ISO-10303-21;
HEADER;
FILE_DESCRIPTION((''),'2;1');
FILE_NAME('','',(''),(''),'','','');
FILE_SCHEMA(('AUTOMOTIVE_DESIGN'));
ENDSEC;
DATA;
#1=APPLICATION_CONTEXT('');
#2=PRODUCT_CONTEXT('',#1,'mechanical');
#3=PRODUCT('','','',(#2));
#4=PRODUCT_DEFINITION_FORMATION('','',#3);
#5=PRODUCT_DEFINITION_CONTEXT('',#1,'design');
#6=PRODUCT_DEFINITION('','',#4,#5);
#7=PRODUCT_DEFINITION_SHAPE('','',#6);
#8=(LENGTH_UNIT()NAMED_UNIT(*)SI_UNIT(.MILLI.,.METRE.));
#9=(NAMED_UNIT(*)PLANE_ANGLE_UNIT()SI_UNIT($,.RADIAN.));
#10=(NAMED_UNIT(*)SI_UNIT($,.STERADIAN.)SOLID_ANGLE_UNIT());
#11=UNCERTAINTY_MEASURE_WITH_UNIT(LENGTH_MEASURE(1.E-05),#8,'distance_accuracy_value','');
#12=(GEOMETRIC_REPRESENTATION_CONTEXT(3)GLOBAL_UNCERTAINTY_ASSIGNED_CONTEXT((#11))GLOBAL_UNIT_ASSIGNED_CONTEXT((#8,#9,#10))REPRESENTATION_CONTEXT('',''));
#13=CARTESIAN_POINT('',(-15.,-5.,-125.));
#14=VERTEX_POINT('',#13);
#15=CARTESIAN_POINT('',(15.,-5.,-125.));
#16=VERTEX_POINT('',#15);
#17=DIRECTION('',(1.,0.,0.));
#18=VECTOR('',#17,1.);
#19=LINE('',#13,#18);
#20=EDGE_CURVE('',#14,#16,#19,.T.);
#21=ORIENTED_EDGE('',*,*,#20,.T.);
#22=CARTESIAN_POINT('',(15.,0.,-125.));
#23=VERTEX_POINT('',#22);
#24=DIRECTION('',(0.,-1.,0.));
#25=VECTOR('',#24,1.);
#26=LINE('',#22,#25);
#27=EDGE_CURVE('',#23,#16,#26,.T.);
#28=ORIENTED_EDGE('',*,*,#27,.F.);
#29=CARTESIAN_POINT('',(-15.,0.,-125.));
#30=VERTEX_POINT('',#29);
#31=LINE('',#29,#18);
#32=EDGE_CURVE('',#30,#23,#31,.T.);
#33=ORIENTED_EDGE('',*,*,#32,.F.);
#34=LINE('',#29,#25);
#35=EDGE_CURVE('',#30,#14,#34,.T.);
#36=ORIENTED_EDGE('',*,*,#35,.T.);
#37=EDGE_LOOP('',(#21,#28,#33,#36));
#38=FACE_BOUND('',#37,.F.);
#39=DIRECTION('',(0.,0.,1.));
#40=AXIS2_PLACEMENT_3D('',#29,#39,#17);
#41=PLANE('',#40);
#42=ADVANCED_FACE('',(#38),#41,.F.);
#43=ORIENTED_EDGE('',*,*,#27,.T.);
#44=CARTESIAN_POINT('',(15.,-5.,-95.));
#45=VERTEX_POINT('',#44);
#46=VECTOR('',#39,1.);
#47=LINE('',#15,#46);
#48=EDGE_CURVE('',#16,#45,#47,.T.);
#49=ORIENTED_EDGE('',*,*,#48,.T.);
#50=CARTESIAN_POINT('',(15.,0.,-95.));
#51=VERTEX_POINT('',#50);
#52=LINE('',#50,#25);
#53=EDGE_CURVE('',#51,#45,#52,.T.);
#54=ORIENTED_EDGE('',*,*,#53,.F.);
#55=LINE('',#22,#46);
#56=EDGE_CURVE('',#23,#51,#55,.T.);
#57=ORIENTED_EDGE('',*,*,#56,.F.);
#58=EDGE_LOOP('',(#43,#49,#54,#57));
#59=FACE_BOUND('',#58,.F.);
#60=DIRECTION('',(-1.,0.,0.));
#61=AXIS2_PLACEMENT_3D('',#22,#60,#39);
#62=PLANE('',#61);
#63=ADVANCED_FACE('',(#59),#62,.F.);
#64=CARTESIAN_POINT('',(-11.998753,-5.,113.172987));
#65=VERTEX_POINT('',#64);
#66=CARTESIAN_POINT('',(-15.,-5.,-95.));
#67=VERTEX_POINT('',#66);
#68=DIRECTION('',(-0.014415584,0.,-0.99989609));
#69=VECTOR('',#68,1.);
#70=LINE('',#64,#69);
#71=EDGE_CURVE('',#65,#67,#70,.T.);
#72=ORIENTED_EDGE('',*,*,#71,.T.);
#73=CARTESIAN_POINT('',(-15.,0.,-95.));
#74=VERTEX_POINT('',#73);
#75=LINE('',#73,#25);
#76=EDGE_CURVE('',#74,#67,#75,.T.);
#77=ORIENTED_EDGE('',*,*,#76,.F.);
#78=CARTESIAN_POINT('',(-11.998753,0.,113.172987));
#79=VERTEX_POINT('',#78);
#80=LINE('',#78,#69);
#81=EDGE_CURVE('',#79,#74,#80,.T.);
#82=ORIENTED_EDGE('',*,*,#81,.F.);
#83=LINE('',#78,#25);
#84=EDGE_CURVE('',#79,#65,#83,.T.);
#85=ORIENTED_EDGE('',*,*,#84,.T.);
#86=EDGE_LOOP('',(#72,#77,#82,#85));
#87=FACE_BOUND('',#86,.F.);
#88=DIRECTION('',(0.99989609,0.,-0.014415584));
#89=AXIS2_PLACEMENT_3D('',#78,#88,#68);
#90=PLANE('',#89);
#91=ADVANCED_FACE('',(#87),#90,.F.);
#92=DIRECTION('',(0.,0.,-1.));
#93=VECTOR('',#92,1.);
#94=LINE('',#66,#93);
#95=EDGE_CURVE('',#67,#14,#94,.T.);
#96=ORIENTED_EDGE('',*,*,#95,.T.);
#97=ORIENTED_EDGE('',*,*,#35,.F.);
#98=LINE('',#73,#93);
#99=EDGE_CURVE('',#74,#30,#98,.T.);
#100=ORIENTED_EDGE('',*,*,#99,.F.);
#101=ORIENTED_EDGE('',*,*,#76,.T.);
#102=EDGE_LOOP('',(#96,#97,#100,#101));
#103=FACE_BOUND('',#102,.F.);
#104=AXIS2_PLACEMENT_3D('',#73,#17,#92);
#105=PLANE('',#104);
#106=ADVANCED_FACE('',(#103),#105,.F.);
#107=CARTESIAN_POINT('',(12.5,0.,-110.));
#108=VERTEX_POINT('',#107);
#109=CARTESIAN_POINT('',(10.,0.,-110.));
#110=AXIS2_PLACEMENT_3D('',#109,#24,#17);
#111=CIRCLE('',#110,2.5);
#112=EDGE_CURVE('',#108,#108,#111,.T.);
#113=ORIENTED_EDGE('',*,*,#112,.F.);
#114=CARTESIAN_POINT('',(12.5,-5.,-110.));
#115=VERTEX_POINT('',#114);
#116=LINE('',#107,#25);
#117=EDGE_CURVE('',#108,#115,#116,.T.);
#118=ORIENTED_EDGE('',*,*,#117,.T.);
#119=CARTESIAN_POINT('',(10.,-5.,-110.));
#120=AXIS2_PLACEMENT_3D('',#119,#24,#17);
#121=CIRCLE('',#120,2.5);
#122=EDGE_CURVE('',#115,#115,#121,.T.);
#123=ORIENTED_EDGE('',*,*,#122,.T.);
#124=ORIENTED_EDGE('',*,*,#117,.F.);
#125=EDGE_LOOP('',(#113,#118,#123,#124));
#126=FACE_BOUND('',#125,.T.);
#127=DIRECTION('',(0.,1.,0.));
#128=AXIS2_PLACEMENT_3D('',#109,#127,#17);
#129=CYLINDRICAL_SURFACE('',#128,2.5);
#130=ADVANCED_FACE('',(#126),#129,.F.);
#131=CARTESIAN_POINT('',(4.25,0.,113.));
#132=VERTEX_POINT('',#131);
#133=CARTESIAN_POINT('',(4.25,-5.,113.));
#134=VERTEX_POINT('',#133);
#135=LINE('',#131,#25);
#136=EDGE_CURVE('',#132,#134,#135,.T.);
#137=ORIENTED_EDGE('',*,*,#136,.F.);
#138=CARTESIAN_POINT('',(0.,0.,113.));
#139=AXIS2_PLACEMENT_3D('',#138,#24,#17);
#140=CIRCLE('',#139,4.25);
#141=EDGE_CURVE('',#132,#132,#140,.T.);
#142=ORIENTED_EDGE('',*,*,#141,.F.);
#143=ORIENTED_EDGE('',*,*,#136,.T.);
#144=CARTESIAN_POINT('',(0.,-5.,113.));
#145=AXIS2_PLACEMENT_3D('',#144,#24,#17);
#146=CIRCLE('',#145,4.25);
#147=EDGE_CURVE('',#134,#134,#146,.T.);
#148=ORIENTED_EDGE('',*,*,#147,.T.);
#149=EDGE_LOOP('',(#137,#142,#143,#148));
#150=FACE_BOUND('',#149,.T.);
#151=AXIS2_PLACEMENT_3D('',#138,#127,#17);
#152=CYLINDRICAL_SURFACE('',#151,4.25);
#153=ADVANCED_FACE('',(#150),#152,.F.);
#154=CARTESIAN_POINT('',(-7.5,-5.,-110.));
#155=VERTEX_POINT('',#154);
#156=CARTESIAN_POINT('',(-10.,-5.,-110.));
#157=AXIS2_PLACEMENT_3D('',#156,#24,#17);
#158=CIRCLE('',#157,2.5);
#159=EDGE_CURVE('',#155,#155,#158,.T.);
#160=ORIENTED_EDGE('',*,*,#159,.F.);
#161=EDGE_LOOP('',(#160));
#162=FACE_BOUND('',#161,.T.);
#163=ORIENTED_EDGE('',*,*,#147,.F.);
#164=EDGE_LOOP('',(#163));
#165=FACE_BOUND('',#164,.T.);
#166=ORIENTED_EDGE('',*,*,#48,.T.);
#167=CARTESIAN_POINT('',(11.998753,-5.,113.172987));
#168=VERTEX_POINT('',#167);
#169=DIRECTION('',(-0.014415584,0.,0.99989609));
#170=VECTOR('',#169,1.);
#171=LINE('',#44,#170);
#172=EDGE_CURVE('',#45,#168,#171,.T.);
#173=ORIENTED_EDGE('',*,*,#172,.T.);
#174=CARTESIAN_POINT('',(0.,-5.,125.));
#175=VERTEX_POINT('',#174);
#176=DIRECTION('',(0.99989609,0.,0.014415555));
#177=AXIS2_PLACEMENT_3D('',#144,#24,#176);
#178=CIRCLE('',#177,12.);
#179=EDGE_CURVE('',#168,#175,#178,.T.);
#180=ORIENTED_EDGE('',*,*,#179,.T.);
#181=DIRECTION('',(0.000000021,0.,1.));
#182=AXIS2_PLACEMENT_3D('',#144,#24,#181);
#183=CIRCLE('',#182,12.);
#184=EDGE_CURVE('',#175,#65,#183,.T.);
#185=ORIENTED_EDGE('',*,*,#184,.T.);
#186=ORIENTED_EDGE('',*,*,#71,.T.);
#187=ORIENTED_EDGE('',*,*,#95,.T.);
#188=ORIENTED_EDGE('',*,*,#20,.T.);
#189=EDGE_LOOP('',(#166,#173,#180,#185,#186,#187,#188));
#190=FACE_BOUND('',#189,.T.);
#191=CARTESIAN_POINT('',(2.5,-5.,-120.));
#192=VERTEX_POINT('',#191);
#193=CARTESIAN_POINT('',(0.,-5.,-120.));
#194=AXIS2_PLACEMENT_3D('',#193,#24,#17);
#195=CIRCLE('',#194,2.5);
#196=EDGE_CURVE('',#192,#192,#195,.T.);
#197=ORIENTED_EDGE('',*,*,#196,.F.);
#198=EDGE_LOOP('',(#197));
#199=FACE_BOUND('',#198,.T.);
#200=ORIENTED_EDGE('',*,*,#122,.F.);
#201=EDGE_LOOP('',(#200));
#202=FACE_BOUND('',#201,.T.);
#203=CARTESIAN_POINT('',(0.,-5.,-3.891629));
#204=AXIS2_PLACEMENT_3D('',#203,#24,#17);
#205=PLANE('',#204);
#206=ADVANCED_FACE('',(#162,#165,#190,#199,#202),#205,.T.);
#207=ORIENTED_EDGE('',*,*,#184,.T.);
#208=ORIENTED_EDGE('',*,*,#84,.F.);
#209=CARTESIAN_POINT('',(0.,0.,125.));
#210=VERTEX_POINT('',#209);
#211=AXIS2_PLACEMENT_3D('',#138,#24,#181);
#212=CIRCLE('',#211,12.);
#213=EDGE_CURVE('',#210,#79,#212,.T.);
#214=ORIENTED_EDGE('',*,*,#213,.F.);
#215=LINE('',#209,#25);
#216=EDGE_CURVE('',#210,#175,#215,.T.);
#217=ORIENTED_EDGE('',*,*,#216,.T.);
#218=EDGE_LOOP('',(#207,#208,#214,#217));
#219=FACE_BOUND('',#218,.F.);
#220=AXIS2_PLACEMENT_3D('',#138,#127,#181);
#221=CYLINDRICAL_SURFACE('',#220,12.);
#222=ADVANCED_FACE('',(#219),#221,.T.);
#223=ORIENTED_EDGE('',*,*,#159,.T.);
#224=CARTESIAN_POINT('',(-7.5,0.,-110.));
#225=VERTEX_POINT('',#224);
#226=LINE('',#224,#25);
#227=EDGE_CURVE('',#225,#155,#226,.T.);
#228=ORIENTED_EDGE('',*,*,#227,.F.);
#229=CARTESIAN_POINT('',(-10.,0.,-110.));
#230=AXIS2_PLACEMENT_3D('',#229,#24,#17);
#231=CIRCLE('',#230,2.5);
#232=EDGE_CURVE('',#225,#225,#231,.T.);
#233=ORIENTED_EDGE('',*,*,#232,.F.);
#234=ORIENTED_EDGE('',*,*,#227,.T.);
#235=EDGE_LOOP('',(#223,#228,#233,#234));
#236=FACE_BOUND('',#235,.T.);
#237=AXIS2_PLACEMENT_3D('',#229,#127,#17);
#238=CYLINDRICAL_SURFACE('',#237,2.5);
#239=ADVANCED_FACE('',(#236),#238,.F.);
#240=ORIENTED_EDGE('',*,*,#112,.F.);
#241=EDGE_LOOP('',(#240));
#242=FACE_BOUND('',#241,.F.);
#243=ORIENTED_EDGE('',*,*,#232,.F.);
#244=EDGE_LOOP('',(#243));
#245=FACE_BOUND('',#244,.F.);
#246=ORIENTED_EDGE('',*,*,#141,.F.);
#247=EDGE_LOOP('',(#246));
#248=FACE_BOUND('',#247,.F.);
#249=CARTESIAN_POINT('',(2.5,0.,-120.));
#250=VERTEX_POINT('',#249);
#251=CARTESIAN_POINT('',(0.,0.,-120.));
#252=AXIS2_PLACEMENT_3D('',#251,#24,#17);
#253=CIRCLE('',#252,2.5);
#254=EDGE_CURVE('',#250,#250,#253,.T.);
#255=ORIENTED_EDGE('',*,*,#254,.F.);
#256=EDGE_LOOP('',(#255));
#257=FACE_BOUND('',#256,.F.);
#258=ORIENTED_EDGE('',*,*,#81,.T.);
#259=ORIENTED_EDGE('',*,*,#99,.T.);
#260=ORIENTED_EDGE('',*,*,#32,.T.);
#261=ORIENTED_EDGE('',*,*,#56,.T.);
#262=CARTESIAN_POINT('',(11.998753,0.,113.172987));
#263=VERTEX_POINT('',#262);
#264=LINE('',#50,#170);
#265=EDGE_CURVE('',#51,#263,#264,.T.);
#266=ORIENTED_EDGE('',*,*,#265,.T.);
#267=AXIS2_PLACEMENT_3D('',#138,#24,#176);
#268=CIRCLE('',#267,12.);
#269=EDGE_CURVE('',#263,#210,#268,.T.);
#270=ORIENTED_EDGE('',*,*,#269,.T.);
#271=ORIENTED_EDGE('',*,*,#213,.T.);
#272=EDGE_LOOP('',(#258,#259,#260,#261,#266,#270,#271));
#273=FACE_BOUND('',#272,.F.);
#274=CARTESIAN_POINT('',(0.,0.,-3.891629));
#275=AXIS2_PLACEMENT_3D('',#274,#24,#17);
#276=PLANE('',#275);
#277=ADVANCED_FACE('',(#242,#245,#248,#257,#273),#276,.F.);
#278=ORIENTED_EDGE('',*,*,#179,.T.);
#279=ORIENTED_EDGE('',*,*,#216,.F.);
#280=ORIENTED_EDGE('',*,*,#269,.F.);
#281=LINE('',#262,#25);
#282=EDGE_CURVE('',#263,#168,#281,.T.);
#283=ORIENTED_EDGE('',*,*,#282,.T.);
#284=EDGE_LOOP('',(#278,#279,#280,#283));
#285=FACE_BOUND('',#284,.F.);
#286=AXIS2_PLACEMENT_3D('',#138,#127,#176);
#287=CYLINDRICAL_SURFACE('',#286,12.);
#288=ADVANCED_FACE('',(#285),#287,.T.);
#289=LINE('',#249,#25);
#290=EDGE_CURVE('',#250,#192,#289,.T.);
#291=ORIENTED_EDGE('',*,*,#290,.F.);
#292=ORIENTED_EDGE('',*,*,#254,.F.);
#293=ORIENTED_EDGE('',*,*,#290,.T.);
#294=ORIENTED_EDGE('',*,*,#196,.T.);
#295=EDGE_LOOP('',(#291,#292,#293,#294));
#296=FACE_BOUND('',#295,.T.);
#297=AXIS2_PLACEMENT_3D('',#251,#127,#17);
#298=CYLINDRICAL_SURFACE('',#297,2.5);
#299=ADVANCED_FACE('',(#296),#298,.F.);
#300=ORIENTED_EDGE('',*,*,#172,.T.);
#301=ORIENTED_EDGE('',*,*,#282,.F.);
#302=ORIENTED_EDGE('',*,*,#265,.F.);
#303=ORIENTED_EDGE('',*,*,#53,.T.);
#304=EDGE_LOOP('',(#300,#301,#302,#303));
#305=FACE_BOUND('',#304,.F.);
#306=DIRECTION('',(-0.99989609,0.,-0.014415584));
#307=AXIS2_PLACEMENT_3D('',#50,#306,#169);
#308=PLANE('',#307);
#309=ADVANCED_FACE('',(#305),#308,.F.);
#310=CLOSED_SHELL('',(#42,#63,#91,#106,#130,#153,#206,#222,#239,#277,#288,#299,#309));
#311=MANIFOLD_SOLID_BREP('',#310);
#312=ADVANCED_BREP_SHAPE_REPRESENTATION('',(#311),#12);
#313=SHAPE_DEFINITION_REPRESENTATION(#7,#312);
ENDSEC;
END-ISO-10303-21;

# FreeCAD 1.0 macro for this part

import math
import FreeCAD as App
import Part
import Sketcher

V = App.Vector

doc = App.newDocument("Part")
body = doc.addObject("PartDesign::Body", "Body")

sketch1 = body.newObject("Sketcher::SketchObject", "Sketch")
sketch1.AttachmentSupport = (doc.getObject("XZ_Plane"), [""])
sketch1.MapMode = "FlatFace"
sketch1.addGeometry(Part.LineSegment(V(-15, -95, 0), V(-15, -125, 0)), False)
sketch1.addGeometry(Part.LineSegment(V(-15, -125, 0), V(15, -125, 0)), False)
sketch1.addGeometry(Part.LineSegment(V(15, -125, 0), V(15, -95, 0)), False)
sketch1.addGeometry(Part.LineSegment(V(15, -95, 0), V(11.998753, 113.172987, 0)), False)
sketch1.addGeometry(Part.ArcOfCircle(Part.Circle(V(0, 113, 0), V(0, 0, 1), 12), math.radians(0.825979), math.radians(90.000001)), False)
sketch1.addGeometry(Part.ArcOfCircle(Part.Circle(V(0, 113, 0), V(0, 0, 1), 12), math.radians(89.999999), math.radians(179.174021)), False)
sketch1.addGeometry(Part.LineSegment(V(-11.998753, 113.172987, 0), V(-15, -95, 0)), False)
sketch1.addGeometry(Part.Circle(V(-10, -110, 0), V(0, 0, 1), 2.5), False)
sketch1.addGeometry(Part.Circle(V(0, -120, 0), V(0, 0, 1), 2.5), False)
sketch1.addGeometry(Part.Circle(V(10, -110, 0), V(0, 0, 1), 2.5), False)
sketch1.addGeometry(Part.Circle(V(0, 113, 0), V(0, 0, 1), 4.25), False)
sketch1.addConstraint(Sketcher.Constraint("Coincident", 0, 2, 1, 1))
sketch1.addConstraint(Sketcher.Constraint("Coincident", 1, 2, 2, 1))
sketch1.addConstraint(Sketcher.Constraint("Coincident", 2, 2, 3, 1))
sketch1.addConstraint(Sketcher.Constraint("Tangent", 3, 2, 4, 1))
sketch1.addConstraint(Sketcher.Constraint("Tangent", 4, 2, 5, 1))
sketch1.addConstraint(Sketcher.Constraint("Tangent", 5, 2, 6, 1))
sketch1.addConstraint(Sketcher.Constraint("Coincident", 6, 2, 0, 1))
sketch1.addConstraint(Sketcher.Constraint("Vertical", 0))
sketch1.addConstraint(Sketcher.Constraint("Horizontal", 1))
sketch1.addConstraint(Sketcher.Constraint("Vertical", 2))
sketch1.addConstraint(Sketcher.Constraint("Coincident", 10, 3, 4, 3))
sketch1.addConstraint(Sketcher.Constraint("Equal", 4, 5))
sketch1.addConstraint(Sketcher.Constraint("Equal", 7, 8))
sketch1.addConstraint(Sketcher.Constraint("Equal", 8, 9))
sketch1.addConstraint(Sketcher.Constraint("Symmetric", 7, 3, 9, 3, -2))
sketch1.addConstraint(Sketcher.Constraint("Symmetric", 3, 2, 5, 2, -2))
sketch1.addConstraint(Sketcher.Constraint("PointOnObject", 8, 3, -2))
sketch1.addConstraint(Sketcher.Constraint("PointOnObject", 4, 2, -2))
sketch1.addConstraint(Sketcher.Constraint("Horizontal", 2, 2, 6, 2))
sketch1.addConstraint(Sketcher.Constraint("Equal", 1, 0))
sketch1.addConstraint(Sketcher.Constraint("Diameter", 7, 5.0))
sketch1.addConstraint(Sketcher.Constraint("Radius", 4, 12.0))
sketch1.addConstraint(Sketcher.Constraint("Diameter", 10, 8.5))
sketch1.addConstraint(Sketcher.Constraint("DistanceX", 1, 1, 1, 2, 30.0))
sketch1.addConstraint(Sketcher.Constraint("DistanceY", -1, 1, 4, 3, 113.0))
sketch1.addConstraint(Sketcher.Constraint("DistanceX", 7, 3, -1, 1, 10.0))
sketch1.addConstraint(Sketcher.Constraint("DistanceY", 7, 3, -1, 1, 110.0))
sketch1.addConstraint(Sketcher.Constraint("DistanceY", 8, 3, -1, 1, 120.0))
sketch1.addConstraint(Sketcher.Constraint("DistanceY", 0, 2, -1, 1, 125.0))
pad1 = body.newObject("PartDesign::Pad", "Pad")
pad1.Profile = sketch1
pad1.Length = 5

doc.recompute()
